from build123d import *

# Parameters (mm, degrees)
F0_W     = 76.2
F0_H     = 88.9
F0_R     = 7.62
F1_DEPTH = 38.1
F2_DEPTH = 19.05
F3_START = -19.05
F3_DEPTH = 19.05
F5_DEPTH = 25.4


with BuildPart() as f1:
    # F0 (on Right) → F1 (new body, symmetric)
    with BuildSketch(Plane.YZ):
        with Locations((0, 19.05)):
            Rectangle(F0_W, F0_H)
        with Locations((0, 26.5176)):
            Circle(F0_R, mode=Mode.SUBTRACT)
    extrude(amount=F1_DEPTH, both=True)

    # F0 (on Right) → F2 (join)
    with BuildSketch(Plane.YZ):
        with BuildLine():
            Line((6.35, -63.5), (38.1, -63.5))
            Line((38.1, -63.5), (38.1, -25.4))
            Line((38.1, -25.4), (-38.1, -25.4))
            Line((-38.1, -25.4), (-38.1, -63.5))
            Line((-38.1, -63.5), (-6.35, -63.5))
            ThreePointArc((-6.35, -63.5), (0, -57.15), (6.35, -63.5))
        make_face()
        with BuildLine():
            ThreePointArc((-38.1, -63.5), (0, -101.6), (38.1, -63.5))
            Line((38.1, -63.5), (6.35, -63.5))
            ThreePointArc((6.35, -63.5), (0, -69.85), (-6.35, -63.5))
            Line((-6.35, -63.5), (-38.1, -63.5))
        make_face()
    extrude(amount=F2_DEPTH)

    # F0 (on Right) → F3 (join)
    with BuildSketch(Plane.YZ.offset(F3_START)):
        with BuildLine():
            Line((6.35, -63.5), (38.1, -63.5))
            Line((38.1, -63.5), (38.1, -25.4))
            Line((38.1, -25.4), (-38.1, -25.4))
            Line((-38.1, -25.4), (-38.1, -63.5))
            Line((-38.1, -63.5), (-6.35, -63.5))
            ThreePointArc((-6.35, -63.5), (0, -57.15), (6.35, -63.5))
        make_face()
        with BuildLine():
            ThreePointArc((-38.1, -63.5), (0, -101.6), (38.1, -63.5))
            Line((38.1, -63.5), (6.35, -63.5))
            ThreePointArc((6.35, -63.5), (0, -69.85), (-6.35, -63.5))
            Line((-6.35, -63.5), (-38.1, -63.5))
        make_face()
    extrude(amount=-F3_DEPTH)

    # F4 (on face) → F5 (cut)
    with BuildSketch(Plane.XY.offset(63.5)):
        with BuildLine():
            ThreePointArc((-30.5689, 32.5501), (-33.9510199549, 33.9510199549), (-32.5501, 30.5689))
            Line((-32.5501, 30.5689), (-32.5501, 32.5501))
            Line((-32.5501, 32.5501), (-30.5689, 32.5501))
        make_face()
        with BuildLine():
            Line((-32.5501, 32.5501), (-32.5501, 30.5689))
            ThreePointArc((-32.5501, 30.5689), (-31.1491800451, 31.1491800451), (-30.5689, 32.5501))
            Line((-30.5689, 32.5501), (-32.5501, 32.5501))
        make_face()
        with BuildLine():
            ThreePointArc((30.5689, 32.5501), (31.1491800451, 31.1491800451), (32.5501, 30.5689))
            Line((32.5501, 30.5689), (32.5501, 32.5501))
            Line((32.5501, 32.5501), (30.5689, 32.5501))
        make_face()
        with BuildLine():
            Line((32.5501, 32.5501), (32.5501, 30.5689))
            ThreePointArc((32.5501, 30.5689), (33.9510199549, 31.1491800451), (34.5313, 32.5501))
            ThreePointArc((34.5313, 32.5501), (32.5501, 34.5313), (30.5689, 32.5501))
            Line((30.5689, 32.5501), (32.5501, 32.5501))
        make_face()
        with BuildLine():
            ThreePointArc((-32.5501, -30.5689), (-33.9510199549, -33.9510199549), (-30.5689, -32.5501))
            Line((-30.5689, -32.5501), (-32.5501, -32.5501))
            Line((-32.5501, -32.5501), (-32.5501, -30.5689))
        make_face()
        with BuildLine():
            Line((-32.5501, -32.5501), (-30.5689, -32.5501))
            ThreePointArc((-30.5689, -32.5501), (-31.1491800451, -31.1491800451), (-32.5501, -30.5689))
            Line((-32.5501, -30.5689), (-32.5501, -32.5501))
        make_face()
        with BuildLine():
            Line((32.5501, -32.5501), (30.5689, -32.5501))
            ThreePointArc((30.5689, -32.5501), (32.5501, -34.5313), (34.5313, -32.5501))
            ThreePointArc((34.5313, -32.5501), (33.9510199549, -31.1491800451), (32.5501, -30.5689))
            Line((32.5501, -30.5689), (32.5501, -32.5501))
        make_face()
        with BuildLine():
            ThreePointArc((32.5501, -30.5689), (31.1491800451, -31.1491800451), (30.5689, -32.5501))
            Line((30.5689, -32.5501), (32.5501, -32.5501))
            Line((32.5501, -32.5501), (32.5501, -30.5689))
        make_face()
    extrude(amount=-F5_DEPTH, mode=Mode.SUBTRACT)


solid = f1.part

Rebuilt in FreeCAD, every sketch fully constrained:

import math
import FreeCAD as App
import Part
import Sketcher
from FreeCAD import Vector
Q = App.Units.Quantity


def add_polygon(sketch, points):
    """Adds a closed chain of lines whose ends are joined by coincident constraints."""
    first, n = sketch.GeometryCount, len(points)
    for a, b in zip(points, points[1:] + points[:1]):
        sketch.addGeometry(Part.LineSegment(App.Vector(*a, 0), App.Vector(*b, 0)), False)
    for i in range(n):
        sketch.addConstraint(Sketcher.Constraint("Coincident", first + i, 2, first + (i + 1) % n, 1))

doc = App.newDocument("Part")
body = doc.addObject("PartDesign::Body", "Body")

# Sketch on YZ plane
sketch1 = body.newObject("Sketcher::SketchObject", "Sketch")
sketch1.AttachmentSupport = (doc.getObject("YZ_Plane"), [""])
sketch1.MapMode = "FlatFace"
add_polygon(sketch1, [(-38, 64), (-38, -25), (38, -25), (38, 64)])  # lines 0-3
sketch1.addGeometry(Part.Circle(Vector(0, 27, 0), Vector(0, 0, 1), 8), False)  # 4
sketch1.addConstraint(Sketcher.Constraint("Vertical", 0))
sketch1.addConstraint(Sketcher.Constraint("Horizontal", 1))
sketch1.addConstraint(Sketcher.Constraint("Vertical", 2))
sketch1.addConstraint(Sketcher.Constraint("Horizontal", 3))
sketch1.addConstraint(Sketcher.Constraint("PointOnObject", 4, 3, -2))
sketch1.addConstraint(Sketcher.Constraint("Diameter", 4, Q("0.6 in")))
sketch1.addConstraint(Sketcher.Constraint("DistanceX", 1, 1, 1, 2, Q("3 in")))
sketch1.addConstraint(Sketcher.Constraint("DistanceY", 0, 2, 0, 1, Q("3.5 in")))
sketch1.addConstraint(Sketcher.Constraint("DistanceY", 0, 2, -1, 1, Q("1 in")))
sketch1.addConstraint(Sketcher.Constraint("DistanceX", 0, 2, -1, 1, Q("1.5 in")))
sketch1.addConstraint(Sketcher.Constraint("DistanceY", -1, 1, 4, 3, Q("1.044 in")))
pad1 = body.newObject("PartDesign::Pad", "Pad")
pad1.Profile = sketch1
pad1.Length = Q("3 in")
pad1.Midplane = True

# Sketch on YZ plane
sketch2 = body.newObject("Sketcher::SketchObject", "Sketch001")
sketch2.AttachmentSupport = (doc.getObject("YZ_Plane"), [""])
sketch2.MapMode = "FlatFace"
sketch2.addGeometry(Part.LineSegment(Vector(38, -64, 0), Vector(38, -25, 0)), False)
sketch2.addGeometry(Part.LineSegment(Vector(38, -25, 0), Vector(-38, -25, 0)), False)
sketch2.addGeometry(Part.LineSegment(Vector(-38, -25, 0), Vector(-38, -64, 0)), False)
sketch2.addGeometry(Part.ArcOfCircle(Part.Circle(Vector(0, -64, 0), Vector(0, 0, 1), 38), math.radians(180), math.radians(360)), False)
sketch2.addGeometry(Part.Circle(Vector(0, -64, 0), Vector(0, 0, 1), 6), False)
sketch2.addConstraint(Sketcher.Constraint("Coincident", 0, 2, 1, 1))
sketch2.addConstraint(Sketcher.Constraint("Coincident", 1, 2, 2, 1))
sketch2.addConstraint(Sketcher.Constraint("Tangent", 2, 2, 3, 1))
sketch2.addConstraint(Sketcher.Constraint("Tangent", 3, 2, 0, 1))
sketch2.addConstraint(Sketcher.Constraint("Vertical", 0))
sketch2.addConstraint(Sketcher.Constraint("Horizontal", 1))
sketch2.addConstraint(Sketcher.Constraint("Vertical", 2))
sketch2.addConstraint(Sketcher.Constraint("Coincident", 4, 3, 3, 3))
sketch2.addConstraint(Sketcher.Constraint("PointOnObject", 3, 3, -2))
sketch2.addConstraint(Sketcher.Constraint("Diameter", 4, Q("0.5 in")))
sketch2.addConstraint(Sketcher.Constraint("Radius", 3, Q("1.5 in")))
sketch2.addConstraint(Sketcher.Constraint("DistanceY", 0, 1, 0, 2, Q("1.5 in")))
sketch2.addConstraint(Sketcher.Constraint("DistanceY", 0, 2, -1, 1, Q("1 in")))
pad2 = body.newObject("PartDesign::Pad", "Pad001")
pad2.Profile = sketch2
pad2.Length = Q("0.75 in")

# Sketch on YZ plane
sketch3 = body.newObject("Sketcher::SketchObject", "Sketch002")
sketch3.AttachmentSupport = (doc.getObject("YZ_Plane"), [""])
sketch3.MapMode = "FlatFace"
sketch3.AttachmentOffset = App.Placement(Vector(0, 0, -0.75 * 25.4), App.Rotation())
sketch3.addGeometry(Part.LineSegment(Vector(38, -64, 0), Vector(38, -25, 0)), False)
sketch3.addGeometry(Part.LineSegment(Vector(38, -25, 0), Vector(-38, -25, 0)), False)
sketch3.addGeometry(Part.LineSegment(Vector(-38, -25, 0), Vector(-38, -64, 0)), False)
sketch3.addGeometry(Part.ArcOfCircle(Part.Circle(Vector(0, -64, 0), Vector(0, 0, 1), 38), math.radians(180), math.radians(360)), False)
sketch3.addGeometry(Part.Circle(Vector(0, -64, 0), Vector(0, 0, 1), 6), False)
sketch3.addConstraint(Sketcher.Constraint("Coincident", 0, 2, 1, 1))
sketch3.addConstraint(Sketcher.Constraint("Coincident", 1, 2, 2, 1))
sketch3.addConstraint(Sketcher.Constraint("Tangent", 2, 2, 3, 1))
sketch3.addConstraint(Sketcher.Constraint("Tangent", 3, 2, 0, 1))
sketch3.addConstraint(Sketcher.Constraint("Vertical", 0))
sketch3.addConstraint(Sketcher.Constraint("Horizontal", 1))
sketch3.addConstraint(Sketcher.Constraint("Vertical", 2))
sketch3.addConstraint(Sketcher.Constraint("Coincident", 4, 3, 3, 3))
sketch3.addConstraint(Sketcher.Constraint("PointOnObject", 3, 3, -2))
sketch3.addConstraint(Sketcher.Constraint("Diameter", 4, Q("0.5 in")))
sketch3.addConstraint(Sketcher.Constraint("Radius", 3, Q("1.5 in")))
sketch3.addConstraint(Sketcher.Constraint("DistanceY", 0, 1, 0, 2, Q("1.5 in")))
sketch3.addConstraint(Sketcher.Constraint("DistanceY", 0, 2, -1, 1, Q("1 in")))
pad3 = body.newObject("PartDesign::Pad", "Pad002")
pad3.Profile = sketch3
pad3.Length = Q("0.75 in")
pad3.Reversed = True

# Sketch on XY plane
sketch4 = body.newObject("Sketcher::SketchObject", "Sketch003")
sketch4.AttachmentSupport = (doc.getObject("XY_Plane"), [""])
sketch4.MapMode = "FlatFace"
sketch4.AttachmentOffset = App.Placement(Vector(0, 0, 2.5 * 25.4), App.Rotation())
sketch4.addGeometry(Part.ArcOfCircle(Part.Circle(Vector(-32.6, 32.6, 0), Vector(0, 0, 1), 2), math.radians(0), math.radians(270)), False)
sketch4.addGeometry(Part.ArcOfCircle(Part.Circle(Vector(-32.6, 32.6, 0), Vector(0, 0, 1), 2), math.radians(-90), math.radians(0)), False)
sketch4.addGeometry(Part.ArcOfCircle(Part.Circle(Vector(32.6, 32.6, 0), Vector(0, 0, 1), 2), math.radians(180), math.radians(270)), False)
sketch4.addGeometry(Part.ArcOfCircle(Part.Circle(Vector(32.6, 32.6, 0), Vector(0, 0, 1), 2), math.radians(-90), math.radians(0)), False)
sketch4.addGeometry(Part.ArcOfCircle(Part.Circle(Vector(32.6, 32.6, 0), Vector(0, 0, 1), 2), math.radians(0), math.radians(180)), False)
sketch4.addGeometry(Part.ArcOfCircle(Part.Circle(Vector(-32.6, -32.6, 0), Vector(0, 0, 1), 2), math.radians(90), math.radians(360)), False)
sketch4.addGeometry(Part.ArcOfCircle(Part.Circle(Vector(-32.6, -32.6, 0), Vector(0, 0, 1), 2), math.radians(0), math.radians(90)), False)
sketch4.addGeometry(Part.ArcOfCircle(Part.Circle(Vector(32.6, -32.6, 0), Vector(0, 0, 1), 2), math.radians(180), math.radians(360)), False)
sketch4.addGeometry(Part.ArcOfCircle(Part.Circle(Vector(32.6, -32.6, 0), Vector(0, 0, 1), 2), math.radians(0), math.radians(90)), False)
sketch4.addGeometry(Part.ArcOfCircle(Part.Circle(Vector(32.6, -32.6, 0), Vector(0, 0, 1), 2), math.radians(90), math.radians(180)), False)
sketch4.addConstraint(Sketcher.Constraint("Tangent", 0, 1, 1, 2))
sketch4.addConstraint(Sketcher.Constraint("Coincident", 1, 1, 0, 2))
sketch4.addConstraint(Sketcher.Constraint("Tangent", 2, 2, 3, 1))
sketch4.addConstraint(Sketcher.Constraint("Tangent", 3, 2, 4, 1))
sketch4.addConstraint(Sketcher.Constraint("Tangent", 4, 2, 2, 1))
sketch4.addConstraint(Sketcher.Constraint("Tangent", 5, 1, 6, 2))
sketch4.addConstraint(Sketcher.Constraint("Coincident", 6, 1, 5, 2))
sketch4.addConstraint(Sketcher.Constraint("Tangent", 7, 2, 8, 1))
sketch4.addConstraint(Sketcher.Constraint("Tangent", 8, 2, 9, 1))
sketch4.addConstraint(Sketcher.Constraint("Tangent", 9, 2, 7, 1))
sketch4.addConstraint(Sketcher.Constraint("Equal", 1, 2))
sketch4.addConstraint(Sketcher.Constraint("Equal", 4, 5))
sketch4.addConstraint(Sketcher.Constraint("Equal", 6, 7))
sketch4.addConstraint(Sketcher.Constraint("Symmetric", 2, 3, 5, 3, -1, 1))
sketch4.addConstraint(Sketcher.Constraint("Symmetric", 0, 3, 7, 3, -1, 1))
sketch4.addConstraint(Sketcher.Constraint("Symmetric", 0, 3, 2, 3, -2))
sketch4.addConstraint(Sketcher.Constraint("Horizontal", 4, 3, 0, 1))
sketch4.addConstraint(Sketcher.Constraint("Horizontal", 0, 1, 3, 2))
sketch4.addConstraint(Sketcher.Constraint("Horizontal", 3, 2, 4, 2))
sketch4.addConstraint(Sketcher.Constraint("Horizontal", 9, 3, 6, 1))
sketch4.addConstraint(Sketcher.Constraint("Horizontal", 6, 1, 7, 2))
sketch4.addConstraint(Sketcher.Constraint("Horizontal", 7, 2, 9, 2))
sketch4.addConstraint(Sketcher.Constraint("Vertical", 6, 3, 1, 1))
sketch4.addConstraint(Sketcher.Constraint("Vertical", 9, 3, 2, 2))
sketch4.addConstraint(Sketcher.Constraint("Vertical", 1, 1, 5, 1))
sketch4.addConstraint(Sketcher.Constraint("Vertical", 2, 2, 8, 2))
sketch4.addConstraint(Sketcher.Constraint("Radius", 0, Q("0.078 in")))
sketch4.addConstraint(Sketcher.Constraint("DistanceX", 0, 3, 2, 3, Q("2.563 in")))
sketch4.addConstraint(Sketcher.Constraint("DistanceY", 5, 3, 0, 3, Q("2.563 in")))
pocket1 = body.newObject("PartDesign::Pocket", "Pocket")
pocket1.Profile = sketch4
pocket1.Length = Q("1 in")

doc.recompute()
